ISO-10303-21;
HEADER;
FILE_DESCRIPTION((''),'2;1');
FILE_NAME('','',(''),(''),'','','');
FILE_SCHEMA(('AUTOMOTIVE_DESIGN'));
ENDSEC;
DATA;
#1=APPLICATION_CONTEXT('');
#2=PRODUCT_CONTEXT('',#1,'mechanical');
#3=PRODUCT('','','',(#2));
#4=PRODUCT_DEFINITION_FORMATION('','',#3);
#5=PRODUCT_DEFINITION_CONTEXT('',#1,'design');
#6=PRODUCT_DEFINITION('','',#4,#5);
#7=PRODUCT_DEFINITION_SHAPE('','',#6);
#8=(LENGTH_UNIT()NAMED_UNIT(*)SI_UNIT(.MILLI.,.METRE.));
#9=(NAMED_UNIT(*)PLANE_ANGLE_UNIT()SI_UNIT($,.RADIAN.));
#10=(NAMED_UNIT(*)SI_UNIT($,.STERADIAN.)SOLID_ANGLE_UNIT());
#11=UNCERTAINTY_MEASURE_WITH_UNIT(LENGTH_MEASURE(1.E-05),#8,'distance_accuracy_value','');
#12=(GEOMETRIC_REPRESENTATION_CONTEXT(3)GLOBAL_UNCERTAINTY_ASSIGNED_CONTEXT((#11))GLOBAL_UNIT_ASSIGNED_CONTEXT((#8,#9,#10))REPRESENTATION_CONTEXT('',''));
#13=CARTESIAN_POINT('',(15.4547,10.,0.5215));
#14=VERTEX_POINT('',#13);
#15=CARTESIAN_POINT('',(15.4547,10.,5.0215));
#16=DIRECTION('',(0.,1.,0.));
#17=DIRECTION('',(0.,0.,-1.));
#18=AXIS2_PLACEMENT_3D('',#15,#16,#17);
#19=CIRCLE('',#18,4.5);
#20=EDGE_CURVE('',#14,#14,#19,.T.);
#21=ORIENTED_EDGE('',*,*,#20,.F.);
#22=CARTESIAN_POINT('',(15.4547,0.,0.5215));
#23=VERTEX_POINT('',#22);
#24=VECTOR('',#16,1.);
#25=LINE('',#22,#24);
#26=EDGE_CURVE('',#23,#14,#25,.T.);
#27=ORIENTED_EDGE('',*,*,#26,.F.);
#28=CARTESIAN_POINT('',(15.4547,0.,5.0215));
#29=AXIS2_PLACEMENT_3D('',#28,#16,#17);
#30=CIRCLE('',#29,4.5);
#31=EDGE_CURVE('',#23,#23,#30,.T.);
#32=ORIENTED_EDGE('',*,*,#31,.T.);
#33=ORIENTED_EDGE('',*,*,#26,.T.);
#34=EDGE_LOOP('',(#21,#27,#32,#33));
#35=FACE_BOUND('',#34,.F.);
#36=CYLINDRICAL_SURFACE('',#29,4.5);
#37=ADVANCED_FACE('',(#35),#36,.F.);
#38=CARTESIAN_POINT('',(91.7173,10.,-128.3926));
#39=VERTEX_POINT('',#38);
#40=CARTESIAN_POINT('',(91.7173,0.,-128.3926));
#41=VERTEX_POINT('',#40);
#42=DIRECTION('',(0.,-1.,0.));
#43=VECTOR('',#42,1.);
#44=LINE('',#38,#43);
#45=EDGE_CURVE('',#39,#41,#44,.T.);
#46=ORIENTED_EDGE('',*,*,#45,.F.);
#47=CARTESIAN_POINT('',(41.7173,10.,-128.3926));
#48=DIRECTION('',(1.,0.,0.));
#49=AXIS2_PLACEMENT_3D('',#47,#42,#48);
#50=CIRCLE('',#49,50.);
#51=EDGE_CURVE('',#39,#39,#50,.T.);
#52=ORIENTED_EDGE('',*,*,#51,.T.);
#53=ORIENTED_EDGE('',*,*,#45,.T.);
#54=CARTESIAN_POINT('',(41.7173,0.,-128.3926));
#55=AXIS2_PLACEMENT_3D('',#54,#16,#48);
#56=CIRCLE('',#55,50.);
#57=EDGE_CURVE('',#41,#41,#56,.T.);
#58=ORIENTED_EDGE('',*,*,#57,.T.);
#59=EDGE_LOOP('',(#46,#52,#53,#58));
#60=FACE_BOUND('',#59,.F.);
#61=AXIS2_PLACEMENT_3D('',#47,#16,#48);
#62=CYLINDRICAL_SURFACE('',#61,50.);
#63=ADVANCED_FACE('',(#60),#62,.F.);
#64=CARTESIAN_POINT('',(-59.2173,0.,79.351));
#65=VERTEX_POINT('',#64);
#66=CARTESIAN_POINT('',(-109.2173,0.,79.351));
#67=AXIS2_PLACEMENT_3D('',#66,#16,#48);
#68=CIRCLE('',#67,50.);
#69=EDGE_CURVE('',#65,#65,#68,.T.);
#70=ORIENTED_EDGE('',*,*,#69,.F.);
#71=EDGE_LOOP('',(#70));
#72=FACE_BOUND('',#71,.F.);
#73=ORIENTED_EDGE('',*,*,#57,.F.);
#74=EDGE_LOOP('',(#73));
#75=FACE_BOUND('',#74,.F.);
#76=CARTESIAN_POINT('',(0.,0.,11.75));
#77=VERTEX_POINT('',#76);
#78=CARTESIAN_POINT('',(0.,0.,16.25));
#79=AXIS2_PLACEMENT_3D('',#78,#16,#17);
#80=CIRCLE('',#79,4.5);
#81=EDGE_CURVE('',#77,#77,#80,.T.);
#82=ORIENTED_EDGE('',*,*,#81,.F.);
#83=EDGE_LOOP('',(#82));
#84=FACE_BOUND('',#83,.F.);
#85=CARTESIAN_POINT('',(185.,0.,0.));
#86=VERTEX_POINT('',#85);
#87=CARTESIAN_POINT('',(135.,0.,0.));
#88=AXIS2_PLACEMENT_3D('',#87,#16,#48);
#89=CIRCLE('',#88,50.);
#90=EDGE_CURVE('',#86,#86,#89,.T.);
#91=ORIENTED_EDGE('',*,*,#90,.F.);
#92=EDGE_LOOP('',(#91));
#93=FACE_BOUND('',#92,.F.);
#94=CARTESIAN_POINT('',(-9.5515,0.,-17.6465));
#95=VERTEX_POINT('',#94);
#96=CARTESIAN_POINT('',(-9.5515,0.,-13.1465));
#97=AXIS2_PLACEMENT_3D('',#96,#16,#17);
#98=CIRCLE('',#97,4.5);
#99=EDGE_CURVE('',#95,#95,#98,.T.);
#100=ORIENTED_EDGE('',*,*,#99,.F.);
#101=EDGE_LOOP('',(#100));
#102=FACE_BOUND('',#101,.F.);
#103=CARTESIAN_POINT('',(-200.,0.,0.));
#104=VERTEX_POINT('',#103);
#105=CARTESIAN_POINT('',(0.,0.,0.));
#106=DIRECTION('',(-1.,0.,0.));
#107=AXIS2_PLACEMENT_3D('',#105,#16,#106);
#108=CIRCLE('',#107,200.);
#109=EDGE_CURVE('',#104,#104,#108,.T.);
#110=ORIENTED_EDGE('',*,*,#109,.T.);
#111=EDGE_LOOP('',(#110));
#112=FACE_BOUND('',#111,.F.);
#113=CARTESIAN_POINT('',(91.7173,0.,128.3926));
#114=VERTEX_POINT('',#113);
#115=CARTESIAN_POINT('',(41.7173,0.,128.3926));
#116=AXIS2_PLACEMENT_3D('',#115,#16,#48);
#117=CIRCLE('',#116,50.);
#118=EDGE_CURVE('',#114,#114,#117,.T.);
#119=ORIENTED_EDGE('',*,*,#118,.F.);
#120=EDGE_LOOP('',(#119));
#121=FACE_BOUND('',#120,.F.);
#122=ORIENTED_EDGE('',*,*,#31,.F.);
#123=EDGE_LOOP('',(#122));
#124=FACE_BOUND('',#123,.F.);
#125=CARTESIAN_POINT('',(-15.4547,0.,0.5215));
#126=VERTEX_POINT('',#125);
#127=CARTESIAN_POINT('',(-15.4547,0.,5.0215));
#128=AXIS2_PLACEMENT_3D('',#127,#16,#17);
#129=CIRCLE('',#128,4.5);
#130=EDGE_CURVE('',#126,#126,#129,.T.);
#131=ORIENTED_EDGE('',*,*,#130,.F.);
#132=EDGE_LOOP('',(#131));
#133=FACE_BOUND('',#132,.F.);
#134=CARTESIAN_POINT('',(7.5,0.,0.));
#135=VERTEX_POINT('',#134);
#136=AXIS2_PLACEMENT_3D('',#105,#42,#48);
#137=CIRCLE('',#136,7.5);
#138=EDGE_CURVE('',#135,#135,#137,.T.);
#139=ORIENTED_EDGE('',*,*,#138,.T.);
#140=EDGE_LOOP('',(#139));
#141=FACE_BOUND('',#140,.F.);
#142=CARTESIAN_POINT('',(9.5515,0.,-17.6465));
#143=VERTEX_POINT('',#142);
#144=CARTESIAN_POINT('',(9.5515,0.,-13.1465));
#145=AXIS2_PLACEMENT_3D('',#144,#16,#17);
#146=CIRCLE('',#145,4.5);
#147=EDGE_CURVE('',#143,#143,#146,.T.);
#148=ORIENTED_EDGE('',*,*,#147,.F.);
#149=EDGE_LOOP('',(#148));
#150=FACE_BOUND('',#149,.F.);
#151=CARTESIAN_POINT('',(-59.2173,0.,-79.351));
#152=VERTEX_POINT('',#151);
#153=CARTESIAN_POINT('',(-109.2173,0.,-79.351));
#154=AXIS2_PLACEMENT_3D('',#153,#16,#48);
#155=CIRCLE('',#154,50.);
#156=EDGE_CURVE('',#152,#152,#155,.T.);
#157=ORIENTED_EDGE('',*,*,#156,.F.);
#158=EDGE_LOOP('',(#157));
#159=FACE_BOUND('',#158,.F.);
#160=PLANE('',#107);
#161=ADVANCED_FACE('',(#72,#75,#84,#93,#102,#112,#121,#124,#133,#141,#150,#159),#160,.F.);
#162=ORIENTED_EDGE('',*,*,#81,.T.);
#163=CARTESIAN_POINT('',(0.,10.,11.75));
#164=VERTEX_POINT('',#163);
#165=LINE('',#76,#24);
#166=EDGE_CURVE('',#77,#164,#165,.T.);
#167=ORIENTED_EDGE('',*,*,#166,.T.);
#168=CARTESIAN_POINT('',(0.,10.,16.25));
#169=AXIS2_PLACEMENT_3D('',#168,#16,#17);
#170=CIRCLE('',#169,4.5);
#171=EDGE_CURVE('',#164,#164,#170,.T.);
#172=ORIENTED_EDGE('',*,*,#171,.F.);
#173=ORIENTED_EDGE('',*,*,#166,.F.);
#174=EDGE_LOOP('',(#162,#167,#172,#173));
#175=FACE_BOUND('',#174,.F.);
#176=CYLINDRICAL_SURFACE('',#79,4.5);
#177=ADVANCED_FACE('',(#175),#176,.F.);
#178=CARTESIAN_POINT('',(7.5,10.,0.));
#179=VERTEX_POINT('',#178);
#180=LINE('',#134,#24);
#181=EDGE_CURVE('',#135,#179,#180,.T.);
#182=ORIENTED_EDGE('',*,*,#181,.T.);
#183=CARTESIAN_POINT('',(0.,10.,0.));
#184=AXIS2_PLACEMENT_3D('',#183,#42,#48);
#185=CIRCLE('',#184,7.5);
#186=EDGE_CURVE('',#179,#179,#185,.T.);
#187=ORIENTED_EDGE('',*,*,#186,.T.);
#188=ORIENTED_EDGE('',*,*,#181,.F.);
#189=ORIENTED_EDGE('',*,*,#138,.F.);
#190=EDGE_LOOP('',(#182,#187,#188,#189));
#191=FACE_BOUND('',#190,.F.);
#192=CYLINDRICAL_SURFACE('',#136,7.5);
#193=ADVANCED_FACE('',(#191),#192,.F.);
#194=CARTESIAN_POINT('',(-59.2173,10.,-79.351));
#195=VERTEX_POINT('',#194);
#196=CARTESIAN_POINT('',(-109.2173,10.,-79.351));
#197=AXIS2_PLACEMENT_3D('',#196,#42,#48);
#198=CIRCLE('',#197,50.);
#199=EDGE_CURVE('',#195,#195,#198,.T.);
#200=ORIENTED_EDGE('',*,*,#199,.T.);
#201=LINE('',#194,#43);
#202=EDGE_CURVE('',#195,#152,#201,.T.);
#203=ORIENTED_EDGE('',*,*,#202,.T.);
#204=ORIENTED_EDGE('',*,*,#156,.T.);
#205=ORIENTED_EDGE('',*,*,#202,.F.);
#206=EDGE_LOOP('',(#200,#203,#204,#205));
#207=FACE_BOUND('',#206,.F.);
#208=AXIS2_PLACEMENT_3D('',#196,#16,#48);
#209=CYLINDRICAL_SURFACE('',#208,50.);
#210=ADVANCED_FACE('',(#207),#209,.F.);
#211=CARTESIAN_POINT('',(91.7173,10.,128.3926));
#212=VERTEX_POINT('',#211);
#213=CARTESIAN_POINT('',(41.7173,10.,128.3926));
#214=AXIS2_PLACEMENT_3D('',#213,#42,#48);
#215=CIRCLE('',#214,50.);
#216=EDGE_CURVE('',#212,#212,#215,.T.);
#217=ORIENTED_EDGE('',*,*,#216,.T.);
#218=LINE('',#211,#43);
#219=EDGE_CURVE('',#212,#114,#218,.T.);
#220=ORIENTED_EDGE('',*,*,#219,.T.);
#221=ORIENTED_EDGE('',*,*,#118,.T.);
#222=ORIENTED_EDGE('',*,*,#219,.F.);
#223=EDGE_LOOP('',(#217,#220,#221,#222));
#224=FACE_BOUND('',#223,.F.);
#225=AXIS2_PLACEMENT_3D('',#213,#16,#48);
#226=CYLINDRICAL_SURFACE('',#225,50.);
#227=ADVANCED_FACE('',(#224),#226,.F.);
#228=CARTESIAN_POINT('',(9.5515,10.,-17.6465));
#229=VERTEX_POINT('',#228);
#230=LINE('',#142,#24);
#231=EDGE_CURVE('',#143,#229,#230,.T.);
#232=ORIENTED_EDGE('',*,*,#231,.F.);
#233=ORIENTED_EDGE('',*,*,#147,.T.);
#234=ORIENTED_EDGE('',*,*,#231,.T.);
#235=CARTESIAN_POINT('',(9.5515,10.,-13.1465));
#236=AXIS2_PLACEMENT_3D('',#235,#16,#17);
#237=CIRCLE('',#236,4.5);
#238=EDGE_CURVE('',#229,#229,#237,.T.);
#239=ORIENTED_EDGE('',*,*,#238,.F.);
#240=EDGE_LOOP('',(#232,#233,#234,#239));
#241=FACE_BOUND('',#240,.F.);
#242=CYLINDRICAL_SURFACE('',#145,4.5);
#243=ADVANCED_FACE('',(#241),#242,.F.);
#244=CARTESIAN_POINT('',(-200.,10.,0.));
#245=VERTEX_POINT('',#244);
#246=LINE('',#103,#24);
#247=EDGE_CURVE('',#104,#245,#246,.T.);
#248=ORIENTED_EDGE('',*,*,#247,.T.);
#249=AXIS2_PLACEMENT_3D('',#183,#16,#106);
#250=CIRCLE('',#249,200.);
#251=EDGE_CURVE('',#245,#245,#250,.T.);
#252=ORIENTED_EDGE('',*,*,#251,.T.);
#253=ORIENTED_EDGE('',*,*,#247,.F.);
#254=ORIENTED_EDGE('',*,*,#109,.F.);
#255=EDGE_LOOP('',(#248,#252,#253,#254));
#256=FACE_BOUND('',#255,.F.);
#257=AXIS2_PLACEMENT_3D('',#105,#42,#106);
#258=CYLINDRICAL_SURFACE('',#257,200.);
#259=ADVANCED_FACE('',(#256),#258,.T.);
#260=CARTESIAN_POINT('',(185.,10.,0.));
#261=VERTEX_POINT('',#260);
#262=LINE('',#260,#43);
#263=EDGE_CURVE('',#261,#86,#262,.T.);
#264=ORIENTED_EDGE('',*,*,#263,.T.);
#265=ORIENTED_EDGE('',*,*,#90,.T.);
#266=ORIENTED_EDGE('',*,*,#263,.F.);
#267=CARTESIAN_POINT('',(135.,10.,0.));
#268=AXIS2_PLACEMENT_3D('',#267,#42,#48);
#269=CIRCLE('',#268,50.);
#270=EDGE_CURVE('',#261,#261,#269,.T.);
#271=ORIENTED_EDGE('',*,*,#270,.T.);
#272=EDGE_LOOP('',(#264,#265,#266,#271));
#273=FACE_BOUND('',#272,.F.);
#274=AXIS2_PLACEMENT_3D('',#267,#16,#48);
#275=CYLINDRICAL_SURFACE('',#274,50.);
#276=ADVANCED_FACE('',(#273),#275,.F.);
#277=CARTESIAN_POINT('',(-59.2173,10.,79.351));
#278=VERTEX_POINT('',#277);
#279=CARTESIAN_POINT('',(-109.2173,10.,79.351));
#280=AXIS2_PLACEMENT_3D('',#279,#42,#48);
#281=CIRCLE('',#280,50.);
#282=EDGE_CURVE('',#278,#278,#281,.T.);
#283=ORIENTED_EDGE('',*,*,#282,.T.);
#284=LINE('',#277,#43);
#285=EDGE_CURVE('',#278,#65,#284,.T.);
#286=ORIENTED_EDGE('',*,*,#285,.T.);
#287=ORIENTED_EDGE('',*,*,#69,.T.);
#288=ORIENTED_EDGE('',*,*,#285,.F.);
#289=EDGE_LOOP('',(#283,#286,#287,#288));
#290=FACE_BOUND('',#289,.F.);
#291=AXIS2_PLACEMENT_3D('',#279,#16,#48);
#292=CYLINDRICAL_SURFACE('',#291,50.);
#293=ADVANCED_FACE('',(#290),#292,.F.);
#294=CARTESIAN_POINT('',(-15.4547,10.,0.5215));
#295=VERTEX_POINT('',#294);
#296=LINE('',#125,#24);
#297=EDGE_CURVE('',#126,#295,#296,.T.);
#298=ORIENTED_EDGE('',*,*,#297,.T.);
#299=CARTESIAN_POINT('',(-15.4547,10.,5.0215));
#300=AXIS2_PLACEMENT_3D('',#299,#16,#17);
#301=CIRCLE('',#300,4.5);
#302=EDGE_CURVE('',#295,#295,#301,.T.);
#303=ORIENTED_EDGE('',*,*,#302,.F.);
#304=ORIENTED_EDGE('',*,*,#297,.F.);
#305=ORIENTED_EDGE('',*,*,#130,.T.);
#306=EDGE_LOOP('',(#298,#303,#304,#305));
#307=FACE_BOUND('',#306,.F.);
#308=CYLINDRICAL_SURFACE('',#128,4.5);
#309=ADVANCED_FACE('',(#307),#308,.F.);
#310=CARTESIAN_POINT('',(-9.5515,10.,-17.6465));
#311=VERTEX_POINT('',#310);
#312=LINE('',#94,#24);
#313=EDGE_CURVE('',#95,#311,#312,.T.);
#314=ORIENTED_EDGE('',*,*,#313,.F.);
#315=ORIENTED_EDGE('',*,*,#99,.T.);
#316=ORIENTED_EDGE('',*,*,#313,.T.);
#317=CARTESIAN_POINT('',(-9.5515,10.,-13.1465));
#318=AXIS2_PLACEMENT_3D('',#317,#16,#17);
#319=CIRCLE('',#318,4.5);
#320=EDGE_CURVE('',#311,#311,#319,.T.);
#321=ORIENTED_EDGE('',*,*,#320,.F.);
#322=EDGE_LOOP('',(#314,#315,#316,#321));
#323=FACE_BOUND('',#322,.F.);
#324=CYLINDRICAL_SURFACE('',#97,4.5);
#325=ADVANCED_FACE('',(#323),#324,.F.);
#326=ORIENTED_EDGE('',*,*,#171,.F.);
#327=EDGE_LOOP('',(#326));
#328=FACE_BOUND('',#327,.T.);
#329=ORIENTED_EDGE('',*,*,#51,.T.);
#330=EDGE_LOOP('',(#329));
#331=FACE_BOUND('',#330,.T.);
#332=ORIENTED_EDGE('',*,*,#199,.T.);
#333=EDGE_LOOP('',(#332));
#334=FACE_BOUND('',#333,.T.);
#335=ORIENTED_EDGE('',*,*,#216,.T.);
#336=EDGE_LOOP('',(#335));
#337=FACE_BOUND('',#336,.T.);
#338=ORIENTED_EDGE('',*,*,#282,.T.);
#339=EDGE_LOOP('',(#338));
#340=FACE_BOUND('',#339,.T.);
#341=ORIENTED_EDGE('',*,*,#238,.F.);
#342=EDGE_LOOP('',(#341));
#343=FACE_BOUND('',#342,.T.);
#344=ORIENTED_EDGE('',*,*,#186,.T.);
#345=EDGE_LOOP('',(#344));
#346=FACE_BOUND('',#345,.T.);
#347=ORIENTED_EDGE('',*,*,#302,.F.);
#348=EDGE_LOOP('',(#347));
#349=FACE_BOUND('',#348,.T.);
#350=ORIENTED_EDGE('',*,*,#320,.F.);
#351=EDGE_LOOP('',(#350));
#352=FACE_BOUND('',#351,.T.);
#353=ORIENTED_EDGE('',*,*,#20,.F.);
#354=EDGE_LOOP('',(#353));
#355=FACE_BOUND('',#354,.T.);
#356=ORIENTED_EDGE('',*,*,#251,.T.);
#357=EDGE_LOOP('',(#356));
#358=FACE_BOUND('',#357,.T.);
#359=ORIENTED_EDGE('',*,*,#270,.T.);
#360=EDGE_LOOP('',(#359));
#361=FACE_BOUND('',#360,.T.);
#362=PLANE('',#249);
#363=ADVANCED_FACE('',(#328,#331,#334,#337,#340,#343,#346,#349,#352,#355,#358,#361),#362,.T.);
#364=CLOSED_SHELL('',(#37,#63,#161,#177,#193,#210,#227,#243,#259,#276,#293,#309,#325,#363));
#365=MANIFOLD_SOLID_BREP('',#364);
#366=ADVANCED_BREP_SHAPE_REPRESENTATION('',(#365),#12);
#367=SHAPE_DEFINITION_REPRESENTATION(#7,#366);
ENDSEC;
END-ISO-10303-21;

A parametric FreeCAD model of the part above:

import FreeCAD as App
import Part
import Sketcher

doc = App.newDocument("Part")
body = doc.addObject("PartDesign::Body", "Body")

sketch1 = doc.addObject("Sketcher::SketchObject", "Sketch")
body.addObject(sketch1)
sketch1.AttachmentSupport = (doc.XZ_Plane, [""])
sketch1.MapMode = "FlatFace"
sketch1.addGeometry(Part.Circle(App.Vector(0, 0, 0), App.Vector(0, 0, 1), 200), False)
sketch1.addConstraint([
    Sketcher.Constraint("Coincident", 0, 3, -1, 1),
    Sketcher.Constraint("Diameter", 0, 400.0),
])
pad1 = doc.addObject("PartDesign::Pad", "Pad")
body.addObject(pad1)
pad1.Profile = sketch1
pad1.Length = 10
pad1.Reversed = True

sketch2 = doc.addObject("Sketcher::SketchObject", "Sketch001")
body.addObject(sketch2)
sketch2.AttachmentSupport = (doc.XZ_Plane, [""])
sketch2.MapMode = "FlatFace"
sketch2.AttachmentOffset = App.Placement(App.Vector(0, 0, -10), App.Rotation())
sketch2.addGeometry([
    Part.Circle(App.Vector(135, 0, 0), App.Vector(0, 0, 1), 50),
    Part.Circle(App.Vector(41.7173, -128.3926, 0), App.Vector(0, 0, 1), 50),
    Part.Circle(App.Vector(41.7173, 128.3926, 0), App.Vector(0, 0, 1), 50),
    Part.Circle(App.Vector(-109.2173, -79.351, 0), App.Vector(0, 0, 1), 50),
    Part.Circle(App.Vector(-109.2173, 79.351, 0), App.Vector(0, 0, 1), 50),
], False)
sketch2.addConstraint([
    Sketcher.Constraint("Equal", 0, 1),
    Sketcher.Constraint("Equal", 1, 2),
    Sketcher.Constraint("Equal", 2, 3),
    Sketcher.Constraint("Equal", 3, 4),
    Sketcher.Constraint("Symmetric", 1, 3, 2, 3, -1),
    Sketcher.Constraint("Symmetric", 3, 3, 4, 3, -1),
    Sketcher.Constraint("PointOnObject", 0, 3, -1),
    Sketcher.Constraint("Diameter", 0, 100.0),
    Sketcher.Constraint("DistanceX", -1, 1, 0, 3, 135.0),
    Sketcher.Constraint("DistanceY", 3, 3, -1, 1, 79.351),
    Sketcher.Constraint("DistanceX", -1, 1, 1, 3, 41.7173),
    Sketcher.Constraint("DistanceY", 1, 3, -1, 1, 128.3926),
    Sketcher.Constraint("DistanceX", 3, 3, -1, 1, 109.2173),
])
pocket1 = doc.addObject("PartDesign::Pocket", "Pocket")
body.addObject(pocket1)
pocket1.Profile = sketch2
pocket1.Length = 10
pocket1.Reversed = True

sketch3 = doc.addObject("Sketcher::SketchObject", "Sketch002")
body.addObject(sketch3)
sketch3.AttachmentSupport = (doc.XZ_Plane, [""])
sketch3.MapMode = "FlatFace"
sketch3.addGeometry(Part.Circle(App.Vector(0, 0, 0), App.Vector(0, 0, 1), 7.5), False)
sketch3.addConstraint([
    Sketcher.Constraint("Coincident", 0, 3, -1, 1),
    Sketcher.Constraint("Diameter", 0, 15.0),
])
pocket2 = doc.addObject("PartDesign::Pocket", "Pocket001")
body.addObject(pocket2)
pocket2.Profile = sketch3
pocket2.Length = 10

sketch4 = doc.addObject("Sketcher::SketchObject", "Sketch003")
body.addObject(sketch4)
sketch4.AttachmentSupport = (doc.XZ_Plane, [""])
sketch4.MapMode = "FlatFace"
sketch4.addGeometry([
    Part.Circle(App.Vector(0, 16.25, 0), App.Vector(0, 0, 1), 4.5),
    Part.Circle(App.Vector(-15.4547, 5.0215, 0), App.Vector(0, 0, 1), 4.5),
    Part.Circle(App.Vector(-9.5515, -13.1465, 0), App.Vector(0, 0, 1), 4.5),
    Part.Circle(App.Vector(15.4547, 5.0215, 0), App.Vector(0, 0, 1), 4.5),
    Part.Circle(App.Vector(9.5515, -13.1465, 0), App.Vector(0, 0, 1), 4.5),
], False)
sketch4.addConstraint([
    Sketcher.Constraint("Equal", 0, 1),
    Sketcher.Constraint("Equal", 1, 2),
    Sketcher.Constraint("Equal", 2, 3),
    Sketcher.Constraint("Equal", 3, 4),
    Sketcher.Constraint("Symmetric", 1, 3, 3, 3, -2),
    Sketcher.Constraint("Symmetric", 2, 3, 4, 3, -2),
    Sketcher.Constraint("PointOnObject", 0, 3, -2),
    Sketcher.Constraint("Diameter", 0, 9.0),
    Sketcher.Constraint("DistanceY", -1, 1, 0, 3, 16.25),
    Sketcher.Constraint("DistanceY", 2, 3, 1, 3, 18.168),
    Sketcher.Constraint("DistanceX", 2, 3, 4, 3, 19.103),
    Sketcher.Constraint("DistanceX", 1, 3, -1, 1, 15.4547),
    Sketcher.Constraint("DistanceY", -1, 1, 1, 3, 5.0215),
])
doc.recompute()
hole = doc.addObject("PartDesign::Hole", "Hole")
body.addObject(hole)
hole.Profile = sketch4
hole.ThreadType = "None"
hole.Diameter = 9
hole.DepthType = "Dimension"
hole.Depth = 10
hole.DrillPoint = "Angled"
hole.DrillPointAngle = 118

doc.recompute()
